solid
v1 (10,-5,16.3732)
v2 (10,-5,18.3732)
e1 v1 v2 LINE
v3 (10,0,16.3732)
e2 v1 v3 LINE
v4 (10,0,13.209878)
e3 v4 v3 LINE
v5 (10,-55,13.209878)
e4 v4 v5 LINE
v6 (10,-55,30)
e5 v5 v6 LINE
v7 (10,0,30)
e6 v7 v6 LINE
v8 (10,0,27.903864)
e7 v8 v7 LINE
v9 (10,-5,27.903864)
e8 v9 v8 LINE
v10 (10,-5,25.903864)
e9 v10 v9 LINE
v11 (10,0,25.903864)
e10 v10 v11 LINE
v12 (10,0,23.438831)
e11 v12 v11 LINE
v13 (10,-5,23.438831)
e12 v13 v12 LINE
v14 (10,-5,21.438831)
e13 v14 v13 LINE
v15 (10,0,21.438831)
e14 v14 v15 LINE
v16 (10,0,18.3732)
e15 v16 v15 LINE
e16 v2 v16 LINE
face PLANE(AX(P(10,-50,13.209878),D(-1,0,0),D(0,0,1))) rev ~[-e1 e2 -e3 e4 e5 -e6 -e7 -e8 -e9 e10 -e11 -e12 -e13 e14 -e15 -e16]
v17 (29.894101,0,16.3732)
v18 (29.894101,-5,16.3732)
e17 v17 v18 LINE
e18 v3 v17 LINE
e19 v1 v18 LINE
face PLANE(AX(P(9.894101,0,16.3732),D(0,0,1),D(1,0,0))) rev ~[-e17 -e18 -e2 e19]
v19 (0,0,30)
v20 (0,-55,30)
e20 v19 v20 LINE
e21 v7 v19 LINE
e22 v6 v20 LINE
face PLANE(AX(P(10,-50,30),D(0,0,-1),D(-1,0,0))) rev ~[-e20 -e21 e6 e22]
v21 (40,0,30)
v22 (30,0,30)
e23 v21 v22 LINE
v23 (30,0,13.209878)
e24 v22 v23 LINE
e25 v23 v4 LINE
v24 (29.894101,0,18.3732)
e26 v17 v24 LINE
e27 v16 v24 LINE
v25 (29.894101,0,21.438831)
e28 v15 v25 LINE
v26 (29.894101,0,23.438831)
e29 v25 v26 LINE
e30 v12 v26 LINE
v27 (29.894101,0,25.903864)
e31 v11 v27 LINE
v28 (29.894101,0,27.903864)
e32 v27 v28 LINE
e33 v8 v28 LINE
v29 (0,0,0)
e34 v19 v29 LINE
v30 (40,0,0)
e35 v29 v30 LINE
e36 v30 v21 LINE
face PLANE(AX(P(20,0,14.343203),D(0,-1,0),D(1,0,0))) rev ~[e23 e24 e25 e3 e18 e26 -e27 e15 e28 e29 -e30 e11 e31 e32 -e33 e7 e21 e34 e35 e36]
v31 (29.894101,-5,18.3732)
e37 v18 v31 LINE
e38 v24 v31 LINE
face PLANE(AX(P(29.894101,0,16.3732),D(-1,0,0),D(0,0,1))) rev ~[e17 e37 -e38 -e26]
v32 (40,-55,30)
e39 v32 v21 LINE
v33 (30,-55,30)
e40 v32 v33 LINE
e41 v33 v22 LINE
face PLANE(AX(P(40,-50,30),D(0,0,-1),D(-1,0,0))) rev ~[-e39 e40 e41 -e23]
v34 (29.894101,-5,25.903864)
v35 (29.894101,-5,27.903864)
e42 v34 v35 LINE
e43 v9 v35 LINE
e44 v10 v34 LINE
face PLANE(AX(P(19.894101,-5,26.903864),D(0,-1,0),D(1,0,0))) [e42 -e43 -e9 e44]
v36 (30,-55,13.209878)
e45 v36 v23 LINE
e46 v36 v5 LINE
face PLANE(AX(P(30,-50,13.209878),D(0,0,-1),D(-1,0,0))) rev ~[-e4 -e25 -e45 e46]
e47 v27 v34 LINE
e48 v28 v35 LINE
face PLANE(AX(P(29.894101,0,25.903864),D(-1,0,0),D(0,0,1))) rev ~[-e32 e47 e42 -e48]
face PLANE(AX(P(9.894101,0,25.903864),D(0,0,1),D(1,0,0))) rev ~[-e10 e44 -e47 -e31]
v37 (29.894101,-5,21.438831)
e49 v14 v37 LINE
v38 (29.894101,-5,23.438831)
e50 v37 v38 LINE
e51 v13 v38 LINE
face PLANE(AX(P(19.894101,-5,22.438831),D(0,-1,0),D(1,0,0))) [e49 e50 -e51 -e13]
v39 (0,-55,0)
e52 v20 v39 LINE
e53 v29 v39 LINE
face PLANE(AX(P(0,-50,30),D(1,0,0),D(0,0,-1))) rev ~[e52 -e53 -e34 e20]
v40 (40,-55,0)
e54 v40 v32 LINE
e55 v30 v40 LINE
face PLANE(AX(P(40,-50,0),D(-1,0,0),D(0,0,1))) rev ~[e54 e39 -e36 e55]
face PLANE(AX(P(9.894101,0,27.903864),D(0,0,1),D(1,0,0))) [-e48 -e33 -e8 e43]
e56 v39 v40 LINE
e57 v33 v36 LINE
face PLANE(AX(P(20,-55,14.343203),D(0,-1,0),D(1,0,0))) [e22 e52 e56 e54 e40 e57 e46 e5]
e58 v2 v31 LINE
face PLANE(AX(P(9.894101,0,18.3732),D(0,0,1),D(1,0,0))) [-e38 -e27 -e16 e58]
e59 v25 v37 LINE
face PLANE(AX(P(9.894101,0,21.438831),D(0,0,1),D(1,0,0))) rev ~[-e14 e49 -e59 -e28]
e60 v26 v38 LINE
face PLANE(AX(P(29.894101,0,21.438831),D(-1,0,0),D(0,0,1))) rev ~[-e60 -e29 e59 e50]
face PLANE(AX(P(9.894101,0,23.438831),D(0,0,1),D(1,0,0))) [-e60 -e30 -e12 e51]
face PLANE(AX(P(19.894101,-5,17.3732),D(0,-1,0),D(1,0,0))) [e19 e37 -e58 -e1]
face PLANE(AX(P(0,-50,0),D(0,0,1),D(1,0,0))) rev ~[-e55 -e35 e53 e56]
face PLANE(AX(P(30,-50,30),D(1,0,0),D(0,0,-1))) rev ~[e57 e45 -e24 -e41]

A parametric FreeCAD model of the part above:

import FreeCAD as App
import Part
import Sketcher

V = App.Vector
Q = App.Units.Quantity


def add_polygon(sketch, points):
    """Adds a closed chain of lines whose ends are joined by coincident constraints."""
    first, n = sketch.GeometryCount, len(points)
    for a, b in zip(points, points[1:] + points[:1]):
        sketch.addGeometry(Part.LineSegment(App.Vector(*a, 0), App.Vector(*b, 0)), False)
    for i in range(n):
        sketch.addConstraint(Sketcher.Constraint("Coincident", first + i, 2, first + (i + 1) % n, 1))

doc = App.newDocument("Part")
body = doc.addObject("PartDesign::Body", "Body")

sketch1 = body.newObject("Sketcher::SketchObject", "Sketch")
sketch1.AttachmentSupport = (doc.getObject("XZ_Plane"), [""])
sketch1.MapMode = "FlatFace"
add_polygon(sketch1, [(0, 30), (0, 0), (40, 0), (40, 30), (30, 30), (30, 13), (10, 13), (10, 30)])
sketch1.addConstraint(Sketcher.Constraint("Vertical", 0))
sketch1.addConstraint(Sketcher.Constraint("Horizontal", 1))
sketch1.addConstraint(Sketcher.Constraint("Vertical", 2))
sketch1.addConstraint(Sketcher.Constraint("Horizontal", 3))
sketch1.addConstraint(Sketcher.Constraint("Vertical", 4))
sketch1.addConstraint(Sketcher.Constraint("Horizontal", 5))
sketch1.addConstraint(Sketcher.Constraint("Vertical", 6))
sketch1.addConstraint(Sketcher.Constraint("Horizontal", 7))
sketch1.addConstraint(Sketcher.Constraint("Coincident", 0, 2, -1, 1))
sketch1.addConstraint(Sketcher.Constraint("Horizontal", 3, 2, 6, 2))
sketch1.addConstraint(Sketcher.Constraint("Equal", 3, 7))
sketch1.addConstraint(Sketcher.Constraint("DistanceX", 1, 1, 1, 2, Q("40 mm")))
sketch1.addConstraint(Sketcher.Constraint("DistanceX", 3, 2, 3, 1, Q("10 mm")))
sketch1.addConstraint(Sketcher.Constraint("DistanceY", 0, 2, 0, 1, Q("30 mm")))
sketch1.addConstraint(Sketcher.Constraint("DistanceY", 4, 2, 4, 1, Q("16.790122 mm")))
pad1 = body.newObject("PartDesign::Pad", "Pad")
pad1.Profile = sketch1
pad1.Length = 50

sketch2 = body.newObject("Sketcher::SketchObject", "Sketch001")
sketch2.AttachmentSupport = (doc.getObject("XZ_Plane"), [""])
sketch2.MapMode = "FlatFace"
sketch2.AttachmentOffset = App.Placement(V(0, 0, 50), App.Rotation())
add_polygon(sketch2, [(30, 13), (10, 13), (10, 30), (0, 30), (0, 0), (40, 0), (40, 30), (30, 30)])
sketch2.addConstraint(Sketcher.Constraint("Horizontal", 0))
sketch2.addConstraint(Sketcher.Constraint("Vertical", 1))
sketch2.addConstraint(Sketcher.Constraint("Horizontal", 2))
sketch2.addConstraint(Sketcher.Constraint("Vertical", 3))
sketch2.addConstraint(Sketcher.Constraint("Horizontal", 4))
sketch2.addConstraint(Sketcher.Constraint("Vertical", 5))
sketch2.addConstraint(Sketcher.Constraint("Horizontal", 6))
sketch2.addConstraint(Sketcher.Constraint("Vertical", 7))
sketch2.addConstraint(Sketcher.Constraint("Coincident", 3, 2, -1, 1))
sketch2.addConstraint(Sketcher.Constraint("Horizontal", 2, 2, 5, 2))
sketch2.addConstraint(Sketcher.Constraint("Equal", 2, 6))
sketch2.addConstraint(Sketcher.Constraint("DistanceX", 0, 2, 0, 1, Q("20 mm")))
sketch2.addConstraint(Sketcher.Constraint("DistanceX", 2, 2, 2, 1, Q("10 mm")))
sketch2.addConstraint(Sketcher.Constraint("DistanceY", 3, 2, 3, 1, Q("30 mm")))
sketch2.addConstraint(Sketcher.Constraint("DistanceY", 1, 1, 1, 2, Q("16.790122 mm")))
pad2 = body.newObject("PartDesign::Pad", "Pad001")
pad2.Profile = sketch2
pad2.Length = 5

sketch3 = body.newObject("Sketcher::SketchObject", "Sketch002")
sketch3.AttachmentSupport = (doc.getObject("XZ_Plane"), [""])
sketch3.MapMode = "FlatFace"
add_polygon(sketch3, [(9.9, 18.4), (9.9, 16.4), (29.9, 16.4), (29.9, 18.4)])
add_polygon(sketch3, [(9.9, 23.4), (9.9, 21.4), (29.9, 21.4), (29.9, 23.4)])
add_polygon(sketch3, [(9.9, 27.9), (9.9, 25.9), (29.9, 25.9), (29.9, 27.9)])
sketch3.addConstraint(Sketcher.Constraint("Vertical", 0))
sketch3.addConstraint(Sketcher.Constraint("Horizontal", 1))
sketch3.addConstraint(Sketcher.Constraint("Vertical", 2))
sketch3.addConstraint(Sketcher.Constraint("Horizontal", 3))
sketch3.addConstraint(Sketcher.Constraint("Vertical", 4))
sketch3.addConstraint(Sketcher.Constraint("Horizontal", 5))
sketch3.addConstraint(Sketcher.Constraint("Vertical", 6))
sketch3.addConstraint(Sketcher.Constraint("Horizontal", 7))
sketch3.addConstraint(Sketcher.Constraint("Vertical", 8))
sketch3.addConstraint(Sketcher.Constraint("Horizontal", 9))
sketch3.addConstraint(Sketcher.Constraint("Vertical", 10))
sketch3.addConstraint(Sketcher.Constraint("Horizontal", 11))
sketch3.addConstraint(Sketcher.Constraint("Vertical", 3, 2, 4, 2))
sketch3.addConstraint(Sketcher.Constraint("Vertical", 2, 2, 5, 2))
sketch3.addConstraint(Sketcher.Constraint("Vertical", 7, 2, 8, 2))
sketch3.addConstraint(Sketcher.Constraint("Vertical", 6, 2, 9, 2))
sketch3.addConstraint(Sketcher.Constraint("Equal", 2, 4))
sketch3.addConstraint(Sketcher.Constraint("Equal", 6, 8))
sketch3.addConstraint(Sketcher.Constraint("DistanceX", 1, 1, 1, 2, Q("20 mm")))
sketch3.addConstraint(Sketcher.Constraint("DistanceY", 0, 2, 0, 1, Q("2 mm")))
sketch3.addConstraint(Sketcher.Constraint("DistanceX", -1, 1, 0, 2, Q("9.894101 mm")))
sketch3.addConstraint(Sketcher.Constraint("DistanceY", -1, 1, 0, 2, Q("16.3732 mm")))
sketch3.addConstraint(Sketcher.Constraint("DistanceY", -1, 1, 4, 2, Q("21.438831 mm")))
sketch3.addConstraint(Sketcher.Constraint("DistanceY", -1, 1, 8, 2, Q("25.903864 mm")))
pad3 = body.newObject("PartDesign::Pad", "Pad002")
pad3.Profile = sketch3
pad3.Length = 5

doc.recompute()
